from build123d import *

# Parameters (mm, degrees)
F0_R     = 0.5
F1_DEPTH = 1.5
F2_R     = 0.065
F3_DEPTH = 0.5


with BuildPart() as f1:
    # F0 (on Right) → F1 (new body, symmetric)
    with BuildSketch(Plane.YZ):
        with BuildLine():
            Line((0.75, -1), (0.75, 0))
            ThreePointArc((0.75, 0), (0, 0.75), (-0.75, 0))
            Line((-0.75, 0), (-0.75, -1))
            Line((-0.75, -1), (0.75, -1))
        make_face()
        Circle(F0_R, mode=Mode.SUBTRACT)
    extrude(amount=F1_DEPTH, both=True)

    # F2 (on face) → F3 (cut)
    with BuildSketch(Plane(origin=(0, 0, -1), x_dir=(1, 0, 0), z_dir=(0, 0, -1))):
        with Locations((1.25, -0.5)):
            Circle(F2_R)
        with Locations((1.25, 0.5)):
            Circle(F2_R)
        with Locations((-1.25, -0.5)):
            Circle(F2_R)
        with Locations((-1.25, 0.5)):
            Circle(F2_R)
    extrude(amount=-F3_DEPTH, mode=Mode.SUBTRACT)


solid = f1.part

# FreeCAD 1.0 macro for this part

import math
import FreeCAD as App
import Part
import Sketcher

V = App.Vector
Q = App.Units.Quantity

doc = App.newDocument("Part")
body = doc.addObject("PartDesign::Body", "Body")

# Sketch on YZ plane
sketch1 = body.newObject("Sketcher::SketchObject", "Sketch")
sketch1.AttachmentSupport = (doc.getObject("YZ_Plane"), [""])
sketch1.MapMode = "FlatFace"
sketch1.addGeometry([
    Part.LineSegment(V(0.8, -1, 0), V(0.8, 0, 0)),  # 0
    Part.ArcOfCircle(Part.Circle(V(0, 0, 0), V(0, 0, 1), 0.8), math.radians(0), math.radians(180)),  # 1
    Part.LineSegment(V(-0.8, 0, 0), V(-0.8, -1, 0)),  # 2
    Part.LineSegment(V(-0.8, -1, 0), V(0.8, -1, 0)),  # 3
    Part.Circle(V(0, 0, 0), V(0, 0, 1), 0.5),  # 4
], False)
sketch1.addConstraint([
    Sketcher.Constraint("Tangent", 0, 2, 1, 1),
    Sketcher.Constraint("Tangent", 1, 2, 2, 1),
    Sketcher.Constraint("Coincident", 2, 2, 3, 1),
    Sketcher.Constraint("Coincident", 3, 2, 0, 1),
    Sketcher.Constraint("Vertical", 0),
    Sketcher.Constraint("Vertical", 2),
    Sketcher.Constraint("Horizontal", 3),
    Sketcher.Constraint("Coincident", 1, 3, -1, 1),
    Sketcher.Constraint("Coincident", 4, 3, -1, 1),
    Sketcher.Constraint("Diameter", 4, Q("1 mm")),
    Sketcher.Constraint("DistanceY", 0, 1, 0, 2, Q("1 mm")),
    Sketcher.Constraint("Radius", 1, Q("0.75 mm")),
])
pad1 = body.newObject("PartDesign::Pad", "Pad")
pad1.Profile = sketch1
pad1.Length = 3
pad1.Midplane = True

# Sketch on XY plane
sketch2 = body.newObject("Sketcher::SketchObject", "Sketch001")
sketch2.AttachmentSupport = (doc.getObject("XY_Plane"), [""])
sketch2.MapMode = "FlatFace"
sketch2.AttachmentOffset = App.Placement(V(0, 0, -1), App.Rotation())
sketch2.addGeometry([
    Part.Circle(V(1.25, 0.5, 0), V(0, 0, 1), 0.07),
    Part.Circle(V(1.25, -0.5, 0), V(0, 0, 1), 0.07),
    Part.Circle(V(-1.25, 0.5, 0), V(0, 0, 1), 0.07),
    Part.Circle(V(-1.25, -0.5, 0), V(0, 0, 1), 0.07),
], False)
sketch2.addConstraint([
    Sketcher.Constraint("Equal", 0, 1),
    Sketcher.Constraint("Equal", 1, 2),
    Sketcher.Constraint("Equal", 2, 3),
    Sketcher.Constraint("Symmetric", 1, 3, 2, 3, -1, 1),
    Sketcher.Constraint("Symmetric", 0, 3, 3, 3, -1, 1),
    Sketcher.Constraint("Symmetric", 0, 3, 2, 3, -2),
    Sketcher.Constraint("Diameter", 0, Q("0.13 mm")),
    Sketcher.Constraint("DistanceY", 1, 3, 0, 3, Q("1 mm")),
    Sketcher.Constraint("DistanceX", 2, 3, 0, 3, Q("2.5 mm")),
])
pocket1 = body.newObject("PartDesign::Pocket", "Pocket")
pocket1.Profile = sketch2
pocket1.Length = 0.5
pocket1.Reversed = True

doc.recompute()
